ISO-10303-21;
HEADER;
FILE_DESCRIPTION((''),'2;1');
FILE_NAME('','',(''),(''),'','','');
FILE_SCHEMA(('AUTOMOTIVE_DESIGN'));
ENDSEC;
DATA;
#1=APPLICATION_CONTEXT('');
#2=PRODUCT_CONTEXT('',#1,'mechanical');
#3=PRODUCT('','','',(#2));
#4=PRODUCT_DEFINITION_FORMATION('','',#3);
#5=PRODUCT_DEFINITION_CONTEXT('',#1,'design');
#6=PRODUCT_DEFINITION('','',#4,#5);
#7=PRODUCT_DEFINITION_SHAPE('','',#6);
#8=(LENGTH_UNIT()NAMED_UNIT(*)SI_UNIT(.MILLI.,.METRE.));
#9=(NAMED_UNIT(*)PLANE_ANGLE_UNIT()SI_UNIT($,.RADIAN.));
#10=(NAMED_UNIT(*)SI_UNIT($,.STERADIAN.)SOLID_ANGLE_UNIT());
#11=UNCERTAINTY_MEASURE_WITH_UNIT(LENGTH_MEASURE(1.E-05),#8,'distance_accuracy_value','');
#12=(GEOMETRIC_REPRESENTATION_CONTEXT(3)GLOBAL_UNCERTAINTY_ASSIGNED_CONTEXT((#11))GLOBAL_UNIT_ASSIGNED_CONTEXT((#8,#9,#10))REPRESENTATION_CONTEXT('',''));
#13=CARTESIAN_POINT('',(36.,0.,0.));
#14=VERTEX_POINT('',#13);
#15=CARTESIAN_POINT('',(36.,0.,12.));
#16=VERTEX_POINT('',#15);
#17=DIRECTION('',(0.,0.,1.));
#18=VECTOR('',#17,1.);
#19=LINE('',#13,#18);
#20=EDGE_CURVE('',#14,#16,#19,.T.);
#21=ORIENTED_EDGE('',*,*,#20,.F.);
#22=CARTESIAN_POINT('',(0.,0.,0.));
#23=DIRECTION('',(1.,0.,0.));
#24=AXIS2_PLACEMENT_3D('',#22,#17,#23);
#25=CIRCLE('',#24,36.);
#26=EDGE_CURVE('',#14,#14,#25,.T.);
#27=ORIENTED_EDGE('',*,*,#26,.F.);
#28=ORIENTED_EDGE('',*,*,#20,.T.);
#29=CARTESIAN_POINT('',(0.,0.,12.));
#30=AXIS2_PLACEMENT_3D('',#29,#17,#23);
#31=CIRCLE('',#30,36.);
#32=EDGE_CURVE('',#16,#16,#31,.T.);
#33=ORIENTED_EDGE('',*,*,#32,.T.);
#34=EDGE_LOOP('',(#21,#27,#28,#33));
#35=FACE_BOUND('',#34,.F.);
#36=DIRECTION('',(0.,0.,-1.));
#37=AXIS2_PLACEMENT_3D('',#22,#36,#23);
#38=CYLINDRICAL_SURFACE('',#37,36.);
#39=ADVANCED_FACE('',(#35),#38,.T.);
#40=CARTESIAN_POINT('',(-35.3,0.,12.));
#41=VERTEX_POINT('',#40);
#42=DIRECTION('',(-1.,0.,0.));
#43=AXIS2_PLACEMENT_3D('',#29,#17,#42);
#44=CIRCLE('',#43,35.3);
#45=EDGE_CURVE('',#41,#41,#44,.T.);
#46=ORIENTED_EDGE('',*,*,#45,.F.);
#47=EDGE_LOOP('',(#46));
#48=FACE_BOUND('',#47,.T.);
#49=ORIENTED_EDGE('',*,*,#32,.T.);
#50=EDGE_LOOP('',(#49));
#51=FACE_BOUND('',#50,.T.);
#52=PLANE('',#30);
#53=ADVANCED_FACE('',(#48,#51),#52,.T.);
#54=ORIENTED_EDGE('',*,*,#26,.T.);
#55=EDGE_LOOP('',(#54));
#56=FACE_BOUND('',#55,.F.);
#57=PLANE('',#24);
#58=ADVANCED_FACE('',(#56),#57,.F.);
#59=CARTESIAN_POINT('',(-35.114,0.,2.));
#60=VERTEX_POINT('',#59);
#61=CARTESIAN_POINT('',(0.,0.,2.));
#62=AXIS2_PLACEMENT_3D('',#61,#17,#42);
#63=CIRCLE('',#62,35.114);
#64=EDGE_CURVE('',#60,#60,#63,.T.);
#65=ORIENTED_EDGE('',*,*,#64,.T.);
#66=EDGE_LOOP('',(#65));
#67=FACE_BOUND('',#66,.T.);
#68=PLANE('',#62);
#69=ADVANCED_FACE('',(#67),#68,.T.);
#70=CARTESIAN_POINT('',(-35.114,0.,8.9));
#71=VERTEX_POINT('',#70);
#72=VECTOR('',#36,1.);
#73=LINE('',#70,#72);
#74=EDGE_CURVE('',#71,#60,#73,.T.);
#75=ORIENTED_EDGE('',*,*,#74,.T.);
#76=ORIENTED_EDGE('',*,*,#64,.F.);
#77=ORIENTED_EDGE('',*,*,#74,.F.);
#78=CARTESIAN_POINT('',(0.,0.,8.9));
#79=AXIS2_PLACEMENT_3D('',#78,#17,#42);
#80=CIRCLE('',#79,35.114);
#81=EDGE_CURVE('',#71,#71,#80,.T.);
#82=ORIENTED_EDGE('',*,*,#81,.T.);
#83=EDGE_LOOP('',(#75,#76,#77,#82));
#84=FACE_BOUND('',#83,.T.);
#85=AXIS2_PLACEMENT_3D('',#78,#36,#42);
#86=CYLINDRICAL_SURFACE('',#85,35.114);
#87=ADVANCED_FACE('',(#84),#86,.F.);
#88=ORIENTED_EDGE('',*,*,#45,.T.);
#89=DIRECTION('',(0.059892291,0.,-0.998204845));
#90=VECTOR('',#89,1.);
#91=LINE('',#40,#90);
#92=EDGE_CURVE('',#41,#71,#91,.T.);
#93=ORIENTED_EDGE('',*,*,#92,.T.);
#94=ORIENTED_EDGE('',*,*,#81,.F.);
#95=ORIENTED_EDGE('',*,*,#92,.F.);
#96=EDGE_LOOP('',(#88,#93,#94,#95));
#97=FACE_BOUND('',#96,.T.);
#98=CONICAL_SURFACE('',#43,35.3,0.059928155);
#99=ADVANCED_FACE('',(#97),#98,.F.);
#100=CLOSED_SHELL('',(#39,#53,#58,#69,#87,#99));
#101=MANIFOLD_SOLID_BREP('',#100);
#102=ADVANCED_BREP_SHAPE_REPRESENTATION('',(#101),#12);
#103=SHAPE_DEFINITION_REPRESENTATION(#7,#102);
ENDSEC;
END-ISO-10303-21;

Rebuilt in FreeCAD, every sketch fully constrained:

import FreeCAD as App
import Part
import Sketcher

V = App.Vector

doc = App.newDocument("Part")
body = doc.addObject("PartDesign::Body", "Body")

# Sketch on XY plane
sketch1 = body.newObject("Sketcher::SketchObject", "Sketch")
sketch1.AttachmentSupport = (doc.getObject("XY_Plane"), [""])
sketch1.MapMode = "FlatFace"
sketch1.addGeometry(Part.Circle(V(0, 0, 0), V(0, 0, 1), 36), False)
sketch1.addConstraint(Sketcher.Constraint("Coincident", 0, 3, -1, 1))
sketch1.addConstraint(Sketcher.Constraint("Diameter", 0, 72.0))
pad1 = body.newObject("PartDesign::Pad", "Pad")
pad1.Profile = sketch1
pad1.Length = 12

# Sketch on XZ plane
sketch2 = body.newObject("Sketcher::SketchObject", "Sketch001")
sketch2.AttachmentSupport = (doc.getObject("XZ_Plane"), [""])
sketch2.MapMode = "FlatFace"
sketch2.addGeometry(Part.LineSegment(V(-35.1, 8.9, 0), V(-35.1, 2, 0)), False)
sketch2.addGeometry(Part.LineSegment(V(-35.1, 2, 0), V(0, 2, 0)), False)
sketch2.addGeometry(Part.LineSegment(V(0, 2, 0), V(0, 12, 0)), False)
sketch2.addGeometry(Part.LineSegment(V(0, 12, 0), V(-35.3, 12, 0)), False)
sketch2.addGeometry(Part.LineSegment(V(-35.3, 12, 0), V(-35.1, 8.9, 0)), False)
sketch2.addConstraint(Sketcher.Constraint("Coincident", 0, 2, 1, 1))
sketch2.addConstraint(Sketcher.Constraint("Coincident", 1, 2, 2, 1))
sketch2.addConstraint(Sketcher.Constraint("Coincident", 2, 2, 3, 1))
sketch2.addConstraint(Sketcher.Constraint("Coincident", 3, 2, 4, 1))
sketch2.addConstraint(Sketcher.Constraint("Coincident", 4, 2, 0, 1))
sketch2.addConstraint(Sketcher.Constraint("Vertical", 0))
sketch2.addConstraint(Sketcher.Constraint("Horizontal", 1))
sketch2.addConstraint(Sketcher.Constraint("Vertical", 2))
sketch2.addConstraint(Sketcher.Constraint("Horizontal", 3))
sketch2.addConstraint(Sketcher.Constraint("PointOnObject", 1, 2, -2))
sketch2.addConstraint(Sketcher.Constraint("DistanceY", 2, 1, 2, 2, 10.0))
sketch2.addConstraint(Sketcher.Constraint("DistanceX", 3, 2, 3, 1, 35.3))
sketch2.addConstraint(Sketcher.Constraint("DistanceY", 0, 2, 0, 1, 6.9))
sketch2.addConstraint(Sketcher.Constraint("DistanceY", -1, 1, 0, 2, 2.0))
sketch2.addConstraint(Sketcher.Constraint("DistanceX", 1, 1, 1, 2, 35.114))
groove = body.newObject("PartDesign::Groove", "Groove")
groove.Profile = sketch2
groove.ReferenceAxis = (sketch2, ["V_Axis"])
groove.Angle = 360

doc.recompute()
